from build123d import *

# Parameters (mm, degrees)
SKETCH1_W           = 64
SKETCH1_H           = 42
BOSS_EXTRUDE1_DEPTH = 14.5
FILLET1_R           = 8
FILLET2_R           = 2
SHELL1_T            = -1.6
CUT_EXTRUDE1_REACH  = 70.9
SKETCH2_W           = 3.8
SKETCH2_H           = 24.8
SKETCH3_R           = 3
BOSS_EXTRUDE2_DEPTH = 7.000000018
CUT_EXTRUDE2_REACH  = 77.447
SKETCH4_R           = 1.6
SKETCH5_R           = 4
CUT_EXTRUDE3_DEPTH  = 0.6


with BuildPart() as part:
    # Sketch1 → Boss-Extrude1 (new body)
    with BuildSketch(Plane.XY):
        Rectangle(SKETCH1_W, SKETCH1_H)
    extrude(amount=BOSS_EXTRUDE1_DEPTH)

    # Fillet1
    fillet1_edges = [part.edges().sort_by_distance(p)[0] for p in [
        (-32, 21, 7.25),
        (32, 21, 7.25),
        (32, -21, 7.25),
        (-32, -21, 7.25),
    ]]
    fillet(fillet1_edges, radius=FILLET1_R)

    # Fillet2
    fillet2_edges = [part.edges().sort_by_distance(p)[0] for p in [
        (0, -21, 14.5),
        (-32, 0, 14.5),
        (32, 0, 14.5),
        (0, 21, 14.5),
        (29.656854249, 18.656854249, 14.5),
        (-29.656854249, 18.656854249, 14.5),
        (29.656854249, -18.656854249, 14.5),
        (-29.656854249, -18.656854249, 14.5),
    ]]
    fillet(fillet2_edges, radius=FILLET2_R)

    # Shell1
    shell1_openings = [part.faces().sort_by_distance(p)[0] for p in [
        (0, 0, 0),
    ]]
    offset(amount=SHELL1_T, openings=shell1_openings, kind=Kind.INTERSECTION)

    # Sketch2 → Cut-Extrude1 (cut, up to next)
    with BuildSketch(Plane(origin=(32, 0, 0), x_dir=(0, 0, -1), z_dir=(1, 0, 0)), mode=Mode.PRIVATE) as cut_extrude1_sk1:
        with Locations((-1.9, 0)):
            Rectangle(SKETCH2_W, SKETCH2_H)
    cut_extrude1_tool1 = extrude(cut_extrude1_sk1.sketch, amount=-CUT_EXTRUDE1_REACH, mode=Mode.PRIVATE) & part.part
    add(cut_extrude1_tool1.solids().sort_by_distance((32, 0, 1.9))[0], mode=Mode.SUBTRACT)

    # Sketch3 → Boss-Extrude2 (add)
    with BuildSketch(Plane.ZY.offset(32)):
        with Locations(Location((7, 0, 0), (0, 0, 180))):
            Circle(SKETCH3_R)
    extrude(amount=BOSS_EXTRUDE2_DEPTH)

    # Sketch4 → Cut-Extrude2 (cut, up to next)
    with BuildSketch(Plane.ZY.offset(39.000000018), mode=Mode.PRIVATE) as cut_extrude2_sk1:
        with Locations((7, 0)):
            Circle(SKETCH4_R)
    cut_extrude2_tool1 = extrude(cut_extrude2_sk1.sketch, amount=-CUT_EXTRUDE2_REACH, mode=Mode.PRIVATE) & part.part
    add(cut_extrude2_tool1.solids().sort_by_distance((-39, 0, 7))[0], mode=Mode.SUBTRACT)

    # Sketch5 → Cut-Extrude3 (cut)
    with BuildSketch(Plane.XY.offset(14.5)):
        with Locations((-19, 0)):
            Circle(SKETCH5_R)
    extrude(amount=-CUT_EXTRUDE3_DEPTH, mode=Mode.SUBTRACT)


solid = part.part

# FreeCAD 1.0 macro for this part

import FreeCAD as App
import Part
import Sketcher
from FreeCAD import Vector
Q = App.Units.Quantity


def edges_at(feature, points):
    """Names of the edges that pass closest to the given points."""
    edges = feature.Shape.Edges
    near = lambda p: min(range(len(edges)), key=lambda i: edges[i].distToShape(Part.Vertex(*p))[0])
    return sorted({f"Edge{near(p) + 1}" for p in points})


def faces_at(feature, points):
    """Names of the faces that lie closest to the given points."""
    faces = feature.Shape.Faces
    near = lambda p: min(range(len(faces)), key=lambda i: faces[i].distToShape(Part.Vertex(*p))[0])
    return sorted({f"Face{near(p) + 1}" for p in points})


def add_polygon(sketch, points):
    """Adds a closed chain of lines whose ends are joined by coincident constraints."""
    first, n = sketch.GeometryCount, len(points)
    for a, b in zip(points, points[1:] + points[:1]):
        sketch.addGeometry(Part.LineSegment(App.Vector(*a, 0), App.Vector(*b, 0)), False)
    for i in range(n):
        sketch.addConstraint(Sketcher.Constraint("Coincident", first + i, 2, first + (i + 1) % n, 1))

doc = App.newDocument("Part")
body = doc.addObject("PartDesign::Body", "Body")

# Sketch on XY plane
sketch1 = body.newObject("Sketcher::SketchObject", "Sketch")
sketch1.AttachmentSupport = (doc.getObject("XY_Plane"), [""])
sketch1.MapMode = "FlatFace"
add_polygon(sketch1, [(-32, 21), (-32, -21), (32, -21), (32, 21)])  # lines 0-3
sketch1.addConstraint(Sketcher.Constraint("Vertical", 0))
sketch1.addConstraint(Sketcher.Constraint("Horizontal", 1))
sketch1.addConstraint(Sketcher.Constraint("Vertical", 2))
sketch1.addConstraint(Sketcher.Constraint("Horizontal", 3))
sketch1.addConstraint(Sketcher.Constraint("Symmetric", 0, 2, 2, 2, -1, 1))
sketch1.addConstraint(Sketcher.Constraint("DistanceX", 1, 1, 1, 2, Q("64 mm")))
sketch1.addConstraint(Sketcher.Constraint("DistanceY", 0, 2, 0, 1, Q("42 mm")))
pad1 = body.newObject("PartDesign::Pad", "Pad")
pad1.Profile = sketch1
pad1.Length = 14.5
doc.recompute()

fillet = body.newObject("PartDesign::Fillet", "Fillet")
fillet.Base = (pad1, edges_at(pad1, [
    (-32, 21, 7.25),
    (32, 21, 7.25),
    (32, -21, 7.25),
    (-32, -21, 7.25),
]))
fillet.Radius = 8
doc.recompute()

fillet2 = body.newObject("PartDesign::Fillet", "Fillet001")
fillet2.Base = (fillet, edges_at(fillet, [
    (0, -21, 14.5),
    (-32, 0, 14.5),
    (32, 0, 14.5),
    (0, 21, 14.5),
    (29.657, 18.657, 14.5),
    (-29.657, 18.657, 14.5),
    (29.657, -18.657, 14.5),
    (-29.657, -18.657, 14.5),
]))
fillet2.Radius = 2
doc.recompute()

thickness = body.newObject("PartDesign::Thickness", "Thickness")
thickness.Base = (fillet2, faces_at(fillet2, [(0, 0, 0)]))
thickness.Value = 1.6
thickness.Reversed = True
thickness.Join = "Intersection"

# Sketch on YZ plane
sketch2 = body.newObject("Sketcher::SketchObject", "Sketch001")
sketch2.AttachmentSupport = (doc.getObject("YZ_Plane"), [""])
sketch2.MapMode = "FlatFace"
sketch2.AttachmentOffset = App.Placement(Vector(0, 0, 32), App.Rotation())
add_polygon(sketch2, [(12.4, 3.8), (-12.4, 3.8), (-12.4, 0), (12.4, 0)])  # lines 0-3
sketch2.addConstraint(Sketcher.Constraint("Horizontal", 0))
sketch2.addConstraint(Sketcher.Constraint("Vertical", 1))
sketch2.addConstraint(Sketcher.Constraint("Horizontal", 2))
sketch2.addConstraint(Sketcher.Constraint("Vertical", 3))
sketch2.addConstraint(Sketcher.Constraint("Symmetric", 1, 2, 2, 2, -1, 1))
sketch2.addConstraint(Sketcher.Constraint("DistanceX", 0, 2, 0, 1, Q("24.8 mm")))
sketch2.addConstraint(Sketcher.Constraint("DistanceY", 1, 2, 1, 1, Q("3.8 mm")))
pocket1 = body.newObject("PartDesign::Pocket", "Pocket")
pocket1.Profile = sketch2
pocket1.Type = "UpToFirst"

# Sketch on YZ plane
sketch3 = body.newObject("Sketcher::SketchObject", "Sketch002")
sketch3.AttachmentSupport = (doc.getObject("YZ_Plane"), [""])
sketch3.MapMode = "FlatFace"
sketch3.AttachmentOffset = App.Placement(Vector(0, 0, -32), App.Rotation())
sketch3.addGeometry(Part.Circle(Vector(0, 7, 0), Vector(0, 0, 1), 3), False)
sketch3.addConstraint(Sketcher.Constraint("PointOnObject", 0, 3, -2))
sketch3.addConstraint(Sketcher.Constraint("Diameter", 0, Q("6 mm")))
sketch3.addConstraint(Sketcher.Constraint("DistanceY", -1, 1, 0, 3, Q("7 mm")))
pad2 = body.newObject("PartDesign::Pad", "Pad001")
pad2.Profile = sketch3
pad2.Length = 7
pad2.Reversed = True

# Sketch on YZ plane
sketch4 = body.newObject("Sketcher::SketchObject", "Sketch003")
sketch4.AttachmentSupport = (doc.getObject("YZ_Plane"), [""])
sketch4.MapMode = "FlatFace"
sketch4.AttachmentOffset = App.Placement(Vector(0, 0, -39), App.Rotation())
sketch4.addGeometry(Part.Circle(Vector(0, 7, 0), Vector(0, 0, 1), 1.6), False)
sketch4.addConstraint(Sketcher.Constraint("PointOnObject", 0, 3, -2))
sketch4.addConstraint(Sketcher.Constraint("Diameter", 0, Q("3.2 mm")))
sketch4.addConstraint(Sketcher.Constraint("DistanceY", -1, 1, 0, 3, Q("7 mm")))
pocket2 = body.newObject("PartDesign::Pocket", "Pocket001")
pocket2.Profile = sketch4
pocket2.Type = "UpToFirst"
pocket2.Reversed = True

# Sketch on XY plane
sketch5 = body.newObject("Sketcher::SketchObject", "Sketch004")
sketch5.AttachmentSupport = (doc.getObject("XY_Plane"), [""])
sketch5.MapMode = "FlatFace"
sketch5.AttachmentOffset = App.Placement(Vector(0, 0, 14.5), App.Rotation())
sketch5.addGeometry(Part.Circle(Vector(-19, 0, 0), Vector(0, 0, 1), 4), False)
sketch5.addConstraint(Sketcher.Constraint("PointOnObject", 0, 3, -1))
sketch5.addConstraint(Sketcher.Constraint("Diameter", 0, Q("8 mm")))
sketch5.addConstraint(Sketcher.Constraint("DistanceX", 0, 3, -1, 1, Q("19 mm")))
pocket3 = body.newObject("PartDesign::Pocket", "Pocket002")
pocket3.Profile = sketch5
pocket3.Length = 0.6

doc.recompute()
